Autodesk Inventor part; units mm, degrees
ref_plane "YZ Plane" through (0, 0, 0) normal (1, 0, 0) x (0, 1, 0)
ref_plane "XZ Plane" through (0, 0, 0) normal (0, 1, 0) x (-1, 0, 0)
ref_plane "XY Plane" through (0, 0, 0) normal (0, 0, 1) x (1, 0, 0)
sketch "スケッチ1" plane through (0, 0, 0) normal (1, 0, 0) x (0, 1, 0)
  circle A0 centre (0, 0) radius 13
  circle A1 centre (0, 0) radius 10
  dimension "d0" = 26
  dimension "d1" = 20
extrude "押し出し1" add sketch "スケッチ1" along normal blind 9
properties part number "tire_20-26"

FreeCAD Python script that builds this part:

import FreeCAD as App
import Part
import Sketcher
Q = App.Units.Quantity

doc = App.newDocument("Part")
body = doc.addObject("PartDesign::Body", "Body")

# Sketch on YZ plane
sketch1 = body.newObject("Sketcher::SketchObject", "Sketch")
sketch1.AttachmentSupport = (doc.getObject("YZ_Plane"), [""])
sketch1.MapMode = "FlatFace"
sketch1.addGeometry([
    Part.Circle(App.Vector(0, 0, 0), App.Vector(0, 0, 1), 13),
    Part.Circle(App.Vector(0, 0, 0), App.Vector(0, 0, 1), 10),
], False)
sketch1.addConstraint([
    Sketcher.Constraint("Coincident", 0, 3, -1, 1),
    Sketcher.Constraint("Coincident", 1, 3, -1, 1),
    Sketcher.Constraint("Diameter", 0, Q("26 mm")),
    Sketcher.Constraint("Diameter", 1, Q("20 mm")),
])
pad1 = body.newObject("PartDesign::Pad", "Pad")
pad1.Profile = sketch1
pad1.Length = 9

doc.recompute()
